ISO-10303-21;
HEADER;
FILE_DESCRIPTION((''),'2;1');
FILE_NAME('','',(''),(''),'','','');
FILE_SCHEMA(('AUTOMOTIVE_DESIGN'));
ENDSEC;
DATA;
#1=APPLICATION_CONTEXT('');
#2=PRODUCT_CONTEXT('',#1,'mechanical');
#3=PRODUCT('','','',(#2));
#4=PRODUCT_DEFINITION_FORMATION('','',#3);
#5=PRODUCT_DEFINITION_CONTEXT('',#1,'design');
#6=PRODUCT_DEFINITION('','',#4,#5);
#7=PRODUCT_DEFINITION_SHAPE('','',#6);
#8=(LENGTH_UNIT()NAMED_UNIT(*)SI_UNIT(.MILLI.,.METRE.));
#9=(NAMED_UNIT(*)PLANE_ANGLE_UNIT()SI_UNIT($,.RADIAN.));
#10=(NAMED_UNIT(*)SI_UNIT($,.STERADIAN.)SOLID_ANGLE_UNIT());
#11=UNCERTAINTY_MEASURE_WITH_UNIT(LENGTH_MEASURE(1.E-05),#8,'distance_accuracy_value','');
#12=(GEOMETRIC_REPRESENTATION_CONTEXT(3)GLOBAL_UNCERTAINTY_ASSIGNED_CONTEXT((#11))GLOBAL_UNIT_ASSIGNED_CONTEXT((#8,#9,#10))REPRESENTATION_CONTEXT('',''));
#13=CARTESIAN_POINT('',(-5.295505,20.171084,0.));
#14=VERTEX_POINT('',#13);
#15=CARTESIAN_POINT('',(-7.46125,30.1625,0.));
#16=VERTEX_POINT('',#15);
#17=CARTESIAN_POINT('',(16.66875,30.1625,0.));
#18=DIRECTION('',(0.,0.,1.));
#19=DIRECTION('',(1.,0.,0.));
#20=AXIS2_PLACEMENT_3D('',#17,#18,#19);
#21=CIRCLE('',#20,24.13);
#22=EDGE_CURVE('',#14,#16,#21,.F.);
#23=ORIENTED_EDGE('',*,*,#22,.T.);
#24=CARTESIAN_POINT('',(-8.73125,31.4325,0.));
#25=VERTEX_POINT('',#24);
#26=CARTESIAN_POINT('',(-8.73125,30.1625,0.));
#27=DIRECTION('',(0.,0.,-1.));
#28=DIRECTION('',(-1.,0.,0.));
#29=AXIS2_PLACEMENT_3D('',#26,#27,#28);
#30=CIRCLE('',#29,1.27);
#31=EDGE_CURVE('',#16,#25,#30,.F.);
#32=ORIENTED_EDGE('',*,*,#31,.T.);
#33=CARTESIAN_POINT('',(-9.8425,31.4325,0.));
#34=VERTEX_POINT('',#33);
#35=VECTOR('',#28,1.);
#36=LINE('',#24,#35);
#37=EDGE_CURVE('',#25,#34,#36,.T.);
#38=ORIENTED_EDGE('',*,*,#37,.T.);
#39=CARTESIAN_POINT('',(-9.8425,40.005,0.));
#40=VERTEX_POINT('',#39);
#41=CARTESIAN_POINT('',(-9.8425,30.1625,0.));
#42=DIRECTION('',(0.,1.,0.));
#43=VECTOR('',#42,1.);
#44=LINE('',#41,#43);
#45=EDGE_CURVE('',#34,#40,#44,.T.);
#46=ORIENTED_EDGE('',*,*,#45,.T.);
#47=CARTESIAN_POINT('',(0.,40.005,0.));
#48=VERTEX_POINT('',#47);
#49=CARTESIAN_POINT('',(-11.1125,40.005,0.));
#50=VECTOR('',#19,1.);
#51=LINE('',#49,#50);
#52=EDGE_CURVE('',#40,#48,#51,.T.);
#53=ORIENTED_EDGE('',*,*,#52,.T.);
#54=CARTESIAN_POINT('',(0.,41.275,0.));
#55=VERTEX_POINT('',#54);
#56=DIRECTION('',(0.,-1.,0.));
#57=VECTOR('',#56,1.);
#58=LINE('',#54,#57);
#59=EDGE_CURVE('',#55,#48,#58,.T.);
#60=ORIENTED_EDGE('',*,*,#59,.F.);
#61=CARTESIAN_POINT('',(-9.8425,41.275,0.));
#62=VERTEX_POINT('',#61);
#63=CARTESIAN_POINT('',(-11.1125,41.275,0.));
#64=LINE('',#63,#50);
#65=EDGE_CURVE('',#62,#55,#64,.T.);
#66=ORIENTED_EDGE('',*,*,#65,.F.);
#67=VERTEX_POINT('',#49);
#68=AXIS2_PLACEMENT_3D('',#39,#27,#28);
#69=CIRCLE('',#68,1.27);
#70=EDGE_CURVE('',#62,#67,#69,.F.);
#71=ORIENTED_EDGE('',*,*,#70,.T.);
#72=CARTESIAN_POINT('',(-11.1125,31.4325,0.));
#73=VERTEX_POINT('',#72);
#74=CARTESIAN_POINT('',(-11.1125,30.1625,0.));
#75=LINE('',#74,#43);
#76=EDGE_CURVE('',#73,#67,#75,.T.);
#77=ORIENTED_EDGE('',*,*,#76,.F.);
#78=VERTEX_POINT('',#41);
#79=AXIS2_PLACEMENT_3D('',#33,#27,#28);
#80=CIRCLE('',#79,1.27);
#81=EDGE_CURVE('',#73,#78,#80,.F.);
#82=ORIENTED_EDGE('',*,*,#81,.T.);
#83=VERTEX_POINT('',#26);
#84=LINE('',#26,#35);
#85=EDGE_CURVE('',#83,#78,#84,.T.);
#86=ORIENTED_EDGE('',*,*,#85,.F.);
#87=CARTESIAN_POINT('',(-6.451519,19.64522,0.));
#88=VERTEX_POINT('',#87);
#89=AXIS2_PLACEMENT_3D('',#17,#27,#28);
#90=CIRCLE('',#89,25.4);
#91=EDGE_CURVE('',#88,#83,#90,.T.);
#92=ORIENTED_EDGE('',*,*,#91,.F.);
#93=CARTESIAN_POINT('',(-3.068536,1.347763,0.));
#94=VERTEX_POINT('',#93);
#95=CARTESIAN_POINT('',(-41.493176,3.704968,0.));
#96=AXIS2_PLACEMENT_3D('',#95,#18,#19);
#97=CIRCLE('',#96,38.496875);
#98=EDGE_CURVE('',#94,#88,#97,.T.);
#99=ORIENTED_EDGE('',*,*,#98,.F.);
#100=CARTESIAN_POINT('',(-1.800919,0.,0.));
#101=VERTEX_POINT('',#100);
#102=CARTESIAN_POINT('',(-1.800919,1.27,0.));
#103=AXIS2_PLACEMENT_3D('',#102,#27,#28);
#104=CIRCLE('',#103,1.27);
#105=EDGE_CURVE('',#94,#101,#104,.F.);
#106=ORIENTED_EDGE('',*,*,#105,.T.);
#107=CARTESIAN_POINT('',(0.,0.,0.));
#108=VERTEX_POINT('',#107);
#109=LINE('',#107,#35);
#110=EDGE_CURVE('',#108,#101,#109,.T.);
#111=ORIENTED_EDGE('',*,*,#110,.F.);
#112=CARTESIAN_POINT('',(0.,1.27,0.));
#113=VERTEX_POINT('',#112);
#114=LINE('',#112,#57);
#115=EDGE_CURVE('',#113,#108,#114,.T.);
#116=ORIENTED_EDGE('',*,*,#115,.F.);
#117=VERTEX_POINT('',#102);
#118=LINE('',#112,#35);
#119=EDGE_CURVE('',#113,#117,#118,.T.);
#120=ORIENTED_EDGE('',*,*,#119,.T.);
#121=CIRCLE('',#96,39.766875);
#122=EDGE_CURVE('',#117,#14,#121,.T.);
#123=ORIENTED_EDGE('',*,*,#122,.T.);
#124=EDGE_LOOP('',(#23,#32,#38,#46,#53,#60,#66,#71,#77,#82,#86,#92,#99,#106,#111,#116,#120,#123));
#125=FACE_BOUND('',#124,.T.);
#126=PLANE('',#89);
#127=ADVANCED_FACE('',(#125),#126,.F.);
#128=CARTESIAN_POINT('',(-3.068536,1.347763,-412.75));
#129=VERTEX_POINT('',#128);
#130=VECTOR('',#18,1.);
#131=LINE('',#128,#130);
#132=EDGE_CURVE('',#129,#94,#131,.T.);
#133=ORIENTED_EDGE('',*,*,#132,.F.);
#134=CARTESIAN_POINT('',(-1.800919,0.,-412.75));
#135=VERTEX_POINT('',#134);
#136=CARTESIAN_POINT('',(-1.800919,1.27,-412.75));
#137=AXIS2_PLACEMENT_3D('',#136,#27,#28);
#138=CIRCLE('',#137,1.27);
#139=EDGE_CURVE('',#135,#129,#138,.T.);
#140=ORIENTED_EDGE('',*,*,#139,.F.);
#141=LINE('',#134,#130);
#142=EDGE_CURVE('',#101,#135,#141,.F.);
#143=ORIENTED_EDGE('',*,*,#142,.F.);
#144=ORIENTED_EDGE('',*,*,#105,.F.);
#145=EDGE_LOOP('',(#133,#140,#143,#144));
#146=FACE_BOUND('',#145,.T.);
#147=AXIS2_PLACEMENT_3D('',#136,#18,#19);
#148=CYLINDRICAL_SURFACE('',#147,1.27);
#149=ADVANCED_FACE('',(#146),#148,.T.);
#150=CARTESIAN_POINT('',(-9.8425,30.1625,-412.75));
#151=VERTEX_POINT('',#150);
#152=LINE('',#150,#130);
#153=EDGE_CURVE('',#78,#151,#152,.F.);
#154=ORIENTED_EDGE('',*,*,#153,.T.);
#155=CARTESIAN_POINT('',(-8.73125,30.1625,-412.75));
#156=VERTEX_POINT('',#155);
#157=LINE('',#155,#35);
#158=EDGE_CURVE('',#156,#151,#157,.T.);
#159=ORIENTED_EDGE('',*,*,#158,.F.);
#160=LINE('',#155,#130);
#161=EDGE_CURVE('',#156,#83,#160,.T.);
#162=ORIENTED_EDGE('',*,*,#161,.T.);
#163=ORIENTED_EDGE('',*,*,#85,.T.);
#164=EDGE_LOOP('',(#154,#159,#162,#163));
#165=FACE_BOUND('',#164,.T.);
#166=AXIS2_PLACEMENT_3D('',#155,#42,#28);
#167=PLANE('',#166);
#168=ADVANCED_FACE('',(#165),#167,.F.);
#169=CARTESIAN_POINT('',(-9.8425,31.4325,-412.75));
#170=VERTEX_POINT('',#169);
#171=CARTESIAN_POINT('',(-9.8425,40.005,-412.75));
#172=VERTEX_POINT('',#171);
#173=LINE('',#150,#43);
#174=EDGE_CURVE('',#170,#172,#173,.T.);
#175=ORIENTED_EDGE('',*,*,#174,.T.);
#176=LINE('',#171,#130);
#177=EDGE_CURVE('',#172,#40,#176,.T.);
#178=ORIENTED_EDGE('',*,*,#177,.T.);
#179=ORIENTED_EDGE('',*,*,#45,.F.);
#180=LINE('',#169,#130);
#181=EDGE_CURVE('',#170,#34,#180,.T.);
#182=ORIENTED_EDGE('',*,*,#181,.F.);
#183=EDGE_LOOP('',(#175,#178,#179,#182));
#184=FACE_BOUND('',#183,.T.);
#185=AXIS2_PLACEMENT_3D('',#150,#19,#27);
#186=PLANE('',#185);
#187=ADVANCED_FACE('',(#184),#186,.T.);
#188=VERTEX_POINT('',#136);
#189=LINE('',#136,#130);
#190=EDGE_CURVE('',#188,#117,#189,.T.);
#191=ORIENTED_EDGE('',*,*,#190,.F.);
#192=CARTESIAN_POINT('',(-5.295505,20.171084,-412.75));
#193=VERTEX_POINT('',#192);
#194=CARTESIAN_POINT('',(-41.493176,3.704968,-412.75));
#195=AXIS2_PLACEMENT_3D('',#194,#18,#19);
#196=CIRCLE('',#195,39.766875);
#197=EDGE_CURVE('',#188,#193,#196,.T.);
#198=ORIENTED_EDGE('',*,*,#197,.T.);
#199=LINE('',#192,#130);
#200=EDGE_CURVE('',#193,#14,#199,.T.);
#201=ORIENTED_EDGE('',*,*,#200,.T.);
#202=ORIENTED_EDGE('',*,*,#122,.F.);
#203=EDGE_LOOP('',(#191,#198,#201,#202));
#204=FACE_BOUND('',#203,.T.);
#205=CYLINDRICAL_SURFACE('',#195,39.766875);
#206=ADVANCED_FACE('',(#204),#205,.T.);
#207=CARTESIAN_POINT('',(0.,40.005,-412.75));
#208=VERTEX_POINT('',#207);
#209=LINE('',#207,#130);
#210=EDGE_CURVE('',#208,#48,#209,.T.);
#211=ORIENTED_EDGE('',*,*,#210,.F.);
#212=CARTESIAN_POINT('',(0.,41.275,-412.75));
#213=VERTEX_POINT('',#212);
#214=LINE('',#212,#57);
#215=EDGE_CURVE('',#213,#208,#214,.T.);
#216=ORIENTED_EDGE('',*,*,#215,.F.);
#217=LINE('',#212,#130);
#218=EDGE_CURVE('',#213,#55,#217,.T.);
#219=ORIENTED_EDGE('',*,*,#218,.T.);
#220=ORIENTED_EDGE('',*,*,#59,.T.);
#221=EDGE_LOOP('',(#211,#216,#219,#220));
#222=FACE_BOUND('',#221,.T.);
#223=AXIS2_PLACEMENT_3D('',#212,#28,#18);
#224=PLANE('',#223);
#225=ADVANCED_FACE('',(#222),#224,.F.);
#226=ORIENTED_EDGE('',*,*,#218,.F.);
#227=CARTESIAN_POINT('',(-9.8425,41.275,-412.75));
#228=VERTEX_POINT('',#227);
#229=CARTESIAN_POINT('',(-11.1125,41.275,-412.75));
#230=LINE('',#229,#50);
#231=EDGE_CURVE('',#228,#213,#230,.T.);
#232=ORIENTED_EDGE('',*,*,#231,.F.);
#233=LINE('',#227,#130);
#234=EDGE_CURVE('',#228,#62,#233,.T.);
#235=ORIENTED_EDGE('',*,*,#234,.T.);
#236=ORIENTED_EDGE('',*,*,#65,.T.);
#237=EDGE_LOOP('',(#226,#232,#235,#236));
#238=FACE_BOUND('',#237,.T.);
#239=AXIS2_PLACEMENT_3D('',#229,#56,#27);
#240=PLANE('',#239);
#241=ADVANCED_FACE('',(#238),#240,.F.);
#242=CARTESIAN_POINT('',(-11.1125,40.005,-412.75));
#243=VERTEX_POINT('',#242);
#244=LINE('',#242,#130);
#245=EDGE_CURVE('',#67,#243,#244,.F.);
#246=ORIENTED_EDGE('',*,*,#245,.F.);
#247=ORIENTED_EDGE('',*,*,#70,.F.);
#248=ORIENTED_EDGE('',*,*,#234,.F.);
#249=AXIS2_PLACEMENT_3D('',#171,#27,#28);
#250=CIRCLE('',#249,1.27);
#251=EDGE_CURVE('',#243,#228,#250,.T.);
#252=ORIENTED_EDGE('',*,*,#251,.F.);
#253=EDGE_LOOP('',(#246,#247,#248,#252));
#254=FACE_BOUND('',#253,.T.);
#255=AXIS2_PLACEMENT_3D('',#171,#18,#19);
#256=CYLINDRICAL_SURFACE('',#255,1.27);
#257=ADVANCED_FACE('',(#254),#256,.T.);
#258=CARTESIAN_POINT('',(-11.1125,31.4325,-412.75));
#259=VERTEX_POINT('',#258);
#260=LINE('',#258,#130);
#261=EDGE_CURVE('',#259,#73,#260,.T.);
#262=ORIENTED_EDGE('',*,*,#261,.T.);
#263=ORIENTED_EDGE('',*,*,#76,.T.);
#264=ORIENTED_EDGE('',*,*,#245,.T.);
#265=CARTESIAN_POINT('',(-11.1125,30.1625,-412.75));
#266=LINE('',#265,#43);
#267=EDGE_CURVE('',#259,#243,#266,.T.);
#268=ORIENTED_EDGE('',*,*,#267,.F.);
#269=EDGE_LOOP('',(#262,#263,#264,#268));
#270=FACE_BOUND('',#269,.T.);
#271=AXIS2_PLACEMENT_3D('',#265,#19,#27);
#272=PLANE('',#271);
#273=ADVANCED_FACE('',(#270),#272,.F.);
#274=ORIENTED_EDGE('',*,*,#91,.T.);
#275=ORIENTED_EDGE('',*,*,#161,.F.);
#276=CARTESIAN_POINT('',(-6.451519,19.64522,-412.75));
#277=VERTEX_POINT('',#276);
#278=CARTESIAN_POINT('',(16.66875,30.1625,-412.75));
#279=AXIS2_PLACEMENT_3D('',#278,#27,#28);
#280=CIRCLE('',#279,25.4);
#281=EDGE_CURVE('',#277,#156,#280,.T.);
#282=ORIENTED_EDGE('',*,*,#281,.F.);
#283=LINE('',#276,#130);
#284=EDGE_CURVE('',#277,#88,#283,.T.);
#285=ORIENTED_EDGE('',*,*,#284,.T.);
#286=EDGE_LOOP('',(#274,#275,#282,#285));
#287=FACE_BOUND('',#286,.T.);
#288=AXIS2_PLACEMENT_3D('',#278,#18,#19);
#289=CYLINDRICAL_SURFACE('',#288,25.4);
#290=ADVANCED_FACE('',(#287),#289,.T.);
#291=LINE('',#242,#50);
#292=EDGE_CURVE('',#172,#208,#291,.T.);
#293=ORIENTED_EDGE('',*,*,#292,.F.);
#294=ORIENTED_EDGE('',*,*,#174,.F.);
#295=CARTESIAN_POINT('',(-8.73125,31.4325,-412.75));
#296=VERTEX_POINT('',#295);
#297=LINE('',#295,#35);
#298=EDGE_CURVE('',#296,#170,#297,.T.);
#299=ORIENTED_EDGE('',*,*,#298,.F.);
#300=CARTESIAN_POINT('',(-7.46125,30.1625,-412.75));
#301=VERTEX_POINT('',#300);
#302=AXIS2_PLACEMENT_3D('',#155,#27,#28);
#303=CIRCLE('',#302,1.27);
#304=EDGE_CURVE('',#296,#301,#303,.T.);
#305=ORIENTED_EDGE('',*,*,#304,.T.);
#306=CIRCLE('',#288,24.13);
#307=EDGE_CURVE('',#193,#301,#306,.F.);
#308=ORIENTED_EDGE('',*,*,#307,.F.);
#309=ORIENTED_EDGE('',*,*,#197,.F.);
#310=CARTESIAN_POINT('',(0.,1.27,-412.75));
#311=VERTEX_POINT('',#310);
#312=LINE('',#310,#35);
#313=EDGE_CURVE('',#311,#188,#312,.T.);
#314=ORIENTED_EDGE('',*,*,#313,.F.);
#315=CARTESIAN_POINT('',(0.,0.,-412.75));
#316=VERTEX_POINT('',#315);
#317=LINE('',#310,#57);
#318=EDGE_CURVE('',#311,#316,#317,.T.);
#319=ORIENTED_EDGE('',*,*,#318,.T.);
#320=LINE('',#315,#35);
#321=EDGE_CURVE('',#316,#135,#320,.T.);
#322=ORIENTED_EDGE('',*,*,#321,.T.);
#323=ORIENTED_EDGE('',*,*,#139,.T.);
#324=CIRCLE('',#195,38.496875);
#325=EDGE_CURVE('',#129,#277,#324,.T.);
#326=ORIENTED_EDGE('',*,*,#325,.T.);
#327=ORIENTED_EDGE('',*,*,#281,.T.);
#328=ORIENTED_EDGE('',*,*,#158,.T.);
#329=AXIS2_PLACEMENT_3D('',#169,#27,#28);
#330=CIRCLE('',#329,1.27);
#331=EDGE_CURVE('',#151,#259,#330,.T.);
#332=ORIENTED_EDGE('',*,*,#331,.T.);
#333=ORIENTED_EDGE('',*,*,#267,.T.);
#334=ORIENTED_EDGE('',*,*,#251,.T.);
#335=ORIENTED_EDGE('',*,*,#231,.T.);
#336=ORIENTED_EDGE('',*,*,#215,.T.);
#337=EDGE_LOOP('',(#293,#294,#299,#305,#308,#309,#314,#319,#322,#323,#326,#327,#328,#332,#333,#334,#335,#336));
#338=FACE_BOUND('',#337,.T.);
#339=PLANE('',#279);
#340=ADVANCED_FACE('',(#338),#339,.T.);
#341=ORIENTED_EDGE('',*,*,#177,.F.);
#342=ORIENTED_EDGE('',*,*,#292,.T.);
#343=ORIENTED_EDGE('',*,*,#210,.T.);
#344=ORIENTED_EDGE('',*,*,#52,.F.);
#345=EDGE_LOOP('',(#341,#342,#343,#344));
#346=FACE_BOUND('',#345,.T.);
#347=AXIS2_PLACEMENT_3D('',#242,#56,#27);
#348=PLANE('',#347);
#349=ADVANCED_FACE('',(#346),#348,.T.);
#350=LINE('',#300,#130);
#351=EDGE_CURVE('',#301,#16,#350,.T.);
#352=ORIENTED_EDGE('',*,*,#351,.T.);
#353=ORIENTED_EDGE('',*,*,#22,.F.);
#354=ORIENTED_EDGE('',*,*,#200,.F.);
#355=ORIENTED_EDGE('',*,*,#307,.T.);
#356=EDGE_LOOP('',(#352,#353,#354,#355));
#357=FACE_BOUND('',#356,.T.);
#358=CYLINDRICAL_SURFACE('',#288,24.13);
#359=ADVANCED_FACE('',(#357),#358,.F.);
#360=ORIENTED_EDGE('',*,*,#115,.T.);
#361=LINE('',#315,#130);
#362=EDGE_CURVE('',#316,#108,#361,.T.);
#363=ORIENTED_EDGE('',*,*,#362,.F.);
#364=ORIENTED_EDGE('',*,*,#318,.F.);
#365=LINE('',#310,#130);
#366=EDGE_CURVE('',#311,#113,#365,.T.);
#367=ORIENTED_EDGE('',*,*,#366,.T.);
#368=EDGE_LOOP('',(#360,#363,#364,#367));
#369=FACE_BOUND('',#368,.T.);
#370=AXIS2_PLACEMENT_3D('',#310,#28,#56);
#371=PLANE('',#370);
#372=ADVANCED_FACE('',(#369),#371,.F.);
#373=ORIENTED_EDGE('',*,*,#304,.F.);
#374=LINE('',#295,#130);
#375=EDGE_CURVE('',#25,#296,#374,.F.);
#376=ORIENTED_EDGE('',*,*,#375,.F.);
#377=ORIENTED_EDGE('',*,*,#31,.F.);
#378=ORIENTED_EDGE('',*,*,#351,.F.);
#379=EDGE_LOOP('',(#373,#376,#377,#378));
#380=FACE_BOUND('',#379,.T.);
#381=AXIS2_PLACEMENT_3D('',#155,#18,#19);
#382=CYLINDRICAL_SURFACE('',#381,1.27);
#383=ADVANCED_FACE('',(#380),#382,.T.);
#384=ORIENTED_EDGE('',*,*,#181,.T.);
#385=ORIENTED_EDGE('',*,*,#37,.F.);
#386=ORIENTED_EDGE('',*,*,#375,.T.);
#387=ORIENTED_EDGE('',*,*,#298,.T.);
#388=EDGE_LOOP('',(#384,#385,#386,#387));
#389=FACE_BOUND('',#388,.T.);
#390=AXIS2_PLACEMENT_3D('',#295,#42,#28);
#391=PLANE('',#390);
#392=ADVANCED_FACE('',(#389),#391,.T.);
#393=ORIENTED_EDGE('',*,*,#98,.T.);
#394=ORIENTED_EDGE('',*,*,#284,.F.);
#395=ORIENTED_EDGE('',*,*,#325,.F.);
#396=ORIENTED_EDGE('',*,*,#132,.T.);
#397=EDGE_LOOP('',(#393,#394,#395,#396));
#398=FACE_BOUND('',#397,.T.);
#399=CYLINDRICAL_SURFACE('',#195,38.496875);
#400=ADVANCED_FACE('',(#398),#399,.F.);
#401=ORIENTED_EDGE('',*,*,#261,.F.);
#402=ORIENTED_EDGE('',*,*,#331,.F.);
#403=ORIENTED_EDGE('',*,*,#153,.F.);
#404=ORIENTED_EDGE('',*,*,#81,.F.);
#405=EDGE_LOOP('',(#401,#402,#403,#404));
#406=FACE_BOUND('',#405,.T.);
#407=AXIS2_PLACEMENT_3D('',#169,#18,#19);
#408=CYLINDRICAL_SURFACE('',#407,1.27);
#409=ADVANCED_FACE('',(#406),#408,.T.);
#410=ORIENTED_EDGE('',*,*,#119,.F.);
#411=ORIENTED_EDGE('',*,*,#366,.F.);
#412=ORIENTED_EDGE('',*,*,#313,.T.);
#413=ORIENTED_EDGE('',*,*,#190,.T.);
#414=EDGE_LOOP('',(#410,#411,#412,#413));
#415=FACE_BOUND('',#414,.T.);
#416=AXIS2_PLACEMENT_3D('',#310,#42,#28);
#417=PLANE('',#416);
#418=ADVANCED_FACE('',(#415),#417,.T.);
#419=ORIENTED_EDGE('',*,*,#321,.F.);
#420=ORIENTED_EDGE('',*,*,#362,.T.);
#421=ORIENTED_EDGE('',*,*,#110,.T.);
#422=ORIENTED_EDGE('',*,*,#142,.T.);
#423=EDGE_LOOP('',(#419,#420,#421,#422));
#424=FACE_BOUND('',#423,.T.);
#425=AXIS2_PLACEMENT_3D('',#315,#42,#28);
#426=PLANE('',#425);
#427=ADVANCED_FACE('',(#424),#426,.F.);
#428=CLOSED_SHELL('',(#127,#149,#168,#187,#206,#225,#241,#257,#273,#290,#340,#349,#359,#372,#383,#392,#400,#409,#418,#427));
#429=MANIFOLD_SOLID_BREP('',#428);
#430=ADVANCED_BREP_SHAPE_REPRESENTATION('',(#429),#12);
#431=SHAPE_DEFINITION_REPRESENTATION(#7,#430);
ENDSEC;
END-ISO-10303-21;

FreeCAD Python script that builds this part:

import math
import FreeCAD as App
import Part
import Sketcher
from FreeCAD import Vector
Q = App.Units.Quantity


def edges_at(feature, points):
    """Names of the edges that pass closest to the given points."""
    edges = feature.Shape.Edges
    near = lambda p: min(range(len(edges)), key=lambda i: edges[i].distToShape(Part.Vertex(*p))[0])
    return sorted({f"Edge{near(p) + 1}" for p in points})

doc = App.newDocument("Part")
body = doc.addObject("PartDesign::Body", "Body")

sketch1 = body.newObject("Sketcher::SketchObject", "Sketch")
sketch1.AttachmentSupport = (doc.getObject("XY_Plane"), [""])
sketch1.MapMode = "FlatFace"
sketch1.addGeometry(Part.LineSegment(Vector(-3.175, 0, 0), Vector(0, 0, 0)), False)
sketch1.addGeometry(Part.LineSegment(Vector(0, 0, 0), Vector(0, 1.27, 0)), False)
sketch1.addGeometry(Part.LineSegment(Vector(0, 1.27, 0), Vector(-1.800919, 1.27, 0)), False)
sketch1.addGeometry(Part.ArcOfCircle(Part.Circle(Vector(-41.493176, 3.704968, 0), Vector(0, 0, 1), 39.766875), math.radians(-3.510477), math.radians(24.460521)), False)
sketch1.addGeometry(Part.ArcOfCircle(Part.Circle(Vector(16.66875, 30.1625, 0), Vector(0, 0, 1), 24.13), math.radians(176.983039), math.radians(204.460521)), False)
sketch1.addGeometry(Part.LineSegment(Vector(-7.427806, 31.4325, 0), Vector(-9.8425, 31.4325, 0)), False)
sketch1.addGeometry(Part.LineSegment(Vector(-9.8425, 31.4325, 0), Vector(-9.8425, 40.005, 0)), False)
sketch1.addGeometry(Part.LineSegment(Vector(-9.8425, 40.005, 0), Vector(0, 40.005, 0)), False)
sketch1.addGeometry(Part.LineSegment(Vector(0, 40.005, 0), Vector(0, 41.275, 0)), False)
sketch1.addGeometry(Part.LineSegment(Vector(0, 41.275, 0), Vector(-11.1125, 41.275, 0)), False)
sketch1.addGeometry(Part.LineSegment(Vector(-11.1125, 41.275, 0), Vector(-11.1125, 30.1625, 0)), False)
sketch1.addGeometry(Part.LineSegment(Vector(-11.1125, 30.1625, 0), Vector(-8.73125, 30.1625, 0)), False)
sketch1.addGeometry(Part.ArcOfCircle(Part.Circle(Vector(16.66875, 30.1625, 0), Vector(0, 0, 1), 25.4), math.radians(180), math.radians(204.460521)), False)
sketch1.addGeometry(Part.ArcOfCircle(Part.Circle(Vector(-41.493176, 3.704968, 0), Vector(0, 0, 1), 38.496875), math.radians(-5.522736), math.radians(24.460521)), False)
sketch1.addConstraint(Sketcher.Constraint("Coincident", 0, 2, 1, 1))
sketch1.addConstraint(Sketcher.Constraint("Coincident", 1, 2, 2, 1))
sketch1.addConstraint(Sketcher.Constraint("Coincident", 2, 2, 3, 1))
sketch1.addConstraint(Sketcher.Constraint("Tangent", 3, 2, 4, 2))
sketch1.addConstraint(Sketcher.Constraint("Coincident", 4, 1, 5, 1))
sketch1.addConstraint(Sketcher.Constraint("Coincident", 5, 2, 6, 1))
sketch1.addConstraint(Sketcher.Constraint("Coincident", 6, 2, 7, 1))
sketch1.addConstraint(Sketcher.Constraint("Coincident", 7, 2, 8, 1))
sketch1.addConstraint(Sketcher.Constraint("Coincident", 8, 2, 9, 1))
sketch1.addConstraint(Sketcher.Constraint("Coincident", 9, 2, 10, 1))
sketch1.addConstraint(Sketcher.Constraint("Coincident", 10, 2, 11, 1))
sketch1.addConstraint(Sketcher.Constraint("Coincident", 11, 2, 12, 1))
sketch1.addConstraint(Sketcher.Constraint("Tangent", 12, 2, 13, 2))
sketch1.addConstraint(Sketcher.Constraint("Coincident", 13, 1, 0, 1))
sketch1.addConstraint(Sketcher.Constraint("Horizontal", 0))
sketch1.addConstraint(Sketcher.Constraint("Vertical", 1))
sketch1.addConstraint(Sketcher.Constraint("Horizontal", 2))
sketch1.addConstraint(Sketcher.Constraint("Horizontal", 5))
sketch1.addConstraint(Sketcher.Constraint("Vertical", 6))
sketch1.addConstraint(Sketcher.Constraint("Horizontal", 7))
sketch1.addConstraint(Sketcher.Constraint("Vertical", 8))
sketch1.addConstraint(Sketcher.Constraint("Horizontal", 9))
sketch1.addConstraint(Sketcher.Constraint("Vertical", 10))
sketch1.addConstraint(Sketcher.Constraint("Horizontal", 11))
sketch1.addConstraint(Sketcher.Constraint("Coincident", 0, 2, -1, 1))
sketch1.addConstraint(Sketcher.Constraint("Coincident", 12, 3, 4, 3))
sketch1.addConstraint(Sketcher.Constraint("Coincident", 13, 3, 3, 3))
sketch1.addConstraint(Sketcher.Constraint("PointOnObject", 7, 2, -2))
sketch1.addConstraint(Sketcher.Constraint("Horizontal", 12, 3, 10, 2))
sketch1.addConstraint(Sketcher.Constraint("Equal", 1, 8))
sketch1.addConstraint(Sketcher.Constraint("Equal", 9, 10))
sketch1.addConstraint(Sketcher.Constraint("Radius", 12, Q("1 in")))
sketch1.addConstraint(Sketcher.Constraint("Radius", 4, Q("0.95 in")))
sketch1.addConstraint(Sketcher.Constraint("Radius", 13, Q("1.515625 in")))
sketch1.addConstraint(Sketcher.Constraint("DistanceY", 1, 1, 1, 2, Q("0.05 in")))
sketch1.addConstraint(Sketcher.Constraint("DistanceX", 0, 1, 0, 2, Q("0.125 in")))
sketch1.addConstraint(Sketcher.Constraint("DistanceX", 9, 2, 9, 1, Q("0.4375 in")))
sketch1.addConstraint(Sketcher.Constraint("DistanceX", 11, 1, 11, 2, Q("0.09375 in")))
sketch1.addConstraint(Sketcher.Constraint("DistanceY", 4, 3, 4, 1, Q("0.05 in")))
sketch1.addConstraint(Sketcher.Constraint("DistanceX", 9, 2, 6, 2, Q("0.05 in")))
sketch1.addConstraint(Sketcher.Constraint("DistanceY", -1, 1, 4, 3, Q("1.1875 in")))
pad1 = body.newObject("PartDesign::Pad", "Pad")
pad1.Profile = sketch1
pad1.Length = Q("16.25 in")
pad1.Reversed = True
doc.recompute()

fillet = body.newObject("PartDesign::Fillet", "Fillet")
fillet.Base = (pad1, edges_at(pad1, [
    (-7.428, 31.433, -206.375),
    (-3.175, 0, -206.375),
    (-11.113, 30.163, -206.375),
    (-11.113, 41.275, -206.375),
]))
fillet.Radius = Q("0.05 in")

doc.recompute()
